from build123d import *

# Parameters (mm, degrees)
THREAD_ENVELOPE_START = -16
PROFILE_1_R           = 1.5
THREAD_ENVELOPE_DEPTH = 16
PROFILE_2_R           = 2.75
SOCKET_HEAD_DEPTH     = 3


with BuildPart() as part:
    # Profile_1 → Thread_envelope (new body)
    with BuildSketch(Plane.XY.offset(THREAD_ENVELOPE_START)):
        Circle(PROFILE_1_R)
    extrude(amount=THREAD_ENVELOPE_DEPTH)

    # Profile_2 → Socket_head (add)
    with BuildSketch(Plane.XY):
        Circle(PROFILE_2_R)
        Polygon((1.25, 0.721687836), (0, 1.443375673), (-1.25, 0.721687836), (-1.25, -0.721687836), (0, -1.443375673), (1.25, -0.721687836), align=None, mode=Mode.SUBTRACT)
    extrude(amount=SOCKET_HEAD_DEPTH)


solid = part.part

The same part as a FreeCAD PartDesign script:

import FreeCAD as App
import Part
import Sketcher
Q = App.Units.Quantity


def add_polygon(sketch, points):
    """Adds a closed chain of lines whose ends are joined by coincident constraints."""
    first, n = sketch.GeometryCount, len(points)
    for a, b in zip(points, points[1:] + points[:1]):
        sketch.addGeometry(Part.LineSegment(App.Vector(*a, 0), App.Vector(*b, 0)), False)
    for i in range(n):
        sketch.addConstraint(Sketcher.Constraint("Coincident", first + i, 2, first + (i + 1) % n, 1))

doc = App.newDocument("Part")
params = doc.addObject("Spreadsheet::Sheet", "Params")
for row, (alias, value) in enumerate([
    ("sketch1_diameter", "3 mm"),
    ("pad1_length", "16 mm"),
    ("sketch2_diameter", "5.5 mm"),
    ("pad2_length", "3 mm"),
], start=1):
    params.set(f"A{row}", alias)
    params.set(f"B{row}", "=" + value)
    params.setAlias(f"B{row}", alias)

body = doc.addObject("PartDesign::Body", "Body")

sketch1 = body.newObject("Sketcher::SketchObject", "Sketch")
sketch1.AttachmentSupport = (doc.getObject("XY_Plane"), [""])
sketch1.MapMode = "FlatFace"
sketch1.AttachmentOffset = App.Placement(App.Vector(0, 0, -16), App.Rotation())
sketch1.addGeometry(Part.Circle(App.Vector(0, 0, 0), App.Vector(0, 0, 1), 1.5), False)
sketch1.addConstraint([
    Sketcher.Constraint("Coincident", 0, 3, -1, 1),
    Sketcher.Constraint("Diameter", 0, 3.0),
])
sketch1.setExpression("Constraints[1]", "Params.sketch1_diameter")
pad1 = body.newObject("PartDesign::Pad", "Pad")
pad1.Profile = sketch1
pad1.setExpression("Length", "Params.pad1_length")

sketch2 = body.newObject("Sketcher::SketchObject", "Sketch001")
sketch2.AttachmentSupport = (doc.getObject("XY_Plane"), [""])
sketch2.MapMode = "FlatFace"
sketch2.addGeometry(Part.Circle(App.Vector(0, 0, 0), App.Vector(0, 0, 1), 2.8), False)
add_polygon(sketch2, [(0, 1.4), (1.2, 0.7), (1.2, -0.7), (0, -1.4), (-1.2, -0.7), (-1.2, 0.7)])
sketch2.addConstraint([
    Sketcher.Constraint("Vertical", 2),
    Sketcher.Constraint("Vertical", 5),
    Sketcher.Constraint("Coincident", 0, 3, -1, 1),
    Sketcher.Constraint("Symmetric", 1, 2, 4, 2, -1, 1),
    Sketcher.Constraint("Symmetric", 3, 2, 6, 2, -1, 1),
    Sketcher.Constraint("PointOnObject", 3, 2, -2),
    Sketcher.Constraint("Parallel", 3, 6),
    Sketcher.Constraint("Horizontal", 2, 2, 4, 2),
    Sketcher.Constraint("Diameter", 0, 5.5),
    Sketcher.Constraint("Angle", 1, Q("-30 deg")),
    Sketcher.Constraint("DistanceX", 4, 2, 2, 2, 2.5),
    Sketcher.Constraint("DistanceY", 2, 2, 2, 1, 1.443376),
])
sketch2.setExpression("Constraints[14]", "Params.sketch2_diameter")
pad2 = body.newObject("PartDesign::Pad", "Pad001")
pad2.Profile = sketch2
pad2.setExpression("Length", "Params.pad2_length")

doc.recompute()
